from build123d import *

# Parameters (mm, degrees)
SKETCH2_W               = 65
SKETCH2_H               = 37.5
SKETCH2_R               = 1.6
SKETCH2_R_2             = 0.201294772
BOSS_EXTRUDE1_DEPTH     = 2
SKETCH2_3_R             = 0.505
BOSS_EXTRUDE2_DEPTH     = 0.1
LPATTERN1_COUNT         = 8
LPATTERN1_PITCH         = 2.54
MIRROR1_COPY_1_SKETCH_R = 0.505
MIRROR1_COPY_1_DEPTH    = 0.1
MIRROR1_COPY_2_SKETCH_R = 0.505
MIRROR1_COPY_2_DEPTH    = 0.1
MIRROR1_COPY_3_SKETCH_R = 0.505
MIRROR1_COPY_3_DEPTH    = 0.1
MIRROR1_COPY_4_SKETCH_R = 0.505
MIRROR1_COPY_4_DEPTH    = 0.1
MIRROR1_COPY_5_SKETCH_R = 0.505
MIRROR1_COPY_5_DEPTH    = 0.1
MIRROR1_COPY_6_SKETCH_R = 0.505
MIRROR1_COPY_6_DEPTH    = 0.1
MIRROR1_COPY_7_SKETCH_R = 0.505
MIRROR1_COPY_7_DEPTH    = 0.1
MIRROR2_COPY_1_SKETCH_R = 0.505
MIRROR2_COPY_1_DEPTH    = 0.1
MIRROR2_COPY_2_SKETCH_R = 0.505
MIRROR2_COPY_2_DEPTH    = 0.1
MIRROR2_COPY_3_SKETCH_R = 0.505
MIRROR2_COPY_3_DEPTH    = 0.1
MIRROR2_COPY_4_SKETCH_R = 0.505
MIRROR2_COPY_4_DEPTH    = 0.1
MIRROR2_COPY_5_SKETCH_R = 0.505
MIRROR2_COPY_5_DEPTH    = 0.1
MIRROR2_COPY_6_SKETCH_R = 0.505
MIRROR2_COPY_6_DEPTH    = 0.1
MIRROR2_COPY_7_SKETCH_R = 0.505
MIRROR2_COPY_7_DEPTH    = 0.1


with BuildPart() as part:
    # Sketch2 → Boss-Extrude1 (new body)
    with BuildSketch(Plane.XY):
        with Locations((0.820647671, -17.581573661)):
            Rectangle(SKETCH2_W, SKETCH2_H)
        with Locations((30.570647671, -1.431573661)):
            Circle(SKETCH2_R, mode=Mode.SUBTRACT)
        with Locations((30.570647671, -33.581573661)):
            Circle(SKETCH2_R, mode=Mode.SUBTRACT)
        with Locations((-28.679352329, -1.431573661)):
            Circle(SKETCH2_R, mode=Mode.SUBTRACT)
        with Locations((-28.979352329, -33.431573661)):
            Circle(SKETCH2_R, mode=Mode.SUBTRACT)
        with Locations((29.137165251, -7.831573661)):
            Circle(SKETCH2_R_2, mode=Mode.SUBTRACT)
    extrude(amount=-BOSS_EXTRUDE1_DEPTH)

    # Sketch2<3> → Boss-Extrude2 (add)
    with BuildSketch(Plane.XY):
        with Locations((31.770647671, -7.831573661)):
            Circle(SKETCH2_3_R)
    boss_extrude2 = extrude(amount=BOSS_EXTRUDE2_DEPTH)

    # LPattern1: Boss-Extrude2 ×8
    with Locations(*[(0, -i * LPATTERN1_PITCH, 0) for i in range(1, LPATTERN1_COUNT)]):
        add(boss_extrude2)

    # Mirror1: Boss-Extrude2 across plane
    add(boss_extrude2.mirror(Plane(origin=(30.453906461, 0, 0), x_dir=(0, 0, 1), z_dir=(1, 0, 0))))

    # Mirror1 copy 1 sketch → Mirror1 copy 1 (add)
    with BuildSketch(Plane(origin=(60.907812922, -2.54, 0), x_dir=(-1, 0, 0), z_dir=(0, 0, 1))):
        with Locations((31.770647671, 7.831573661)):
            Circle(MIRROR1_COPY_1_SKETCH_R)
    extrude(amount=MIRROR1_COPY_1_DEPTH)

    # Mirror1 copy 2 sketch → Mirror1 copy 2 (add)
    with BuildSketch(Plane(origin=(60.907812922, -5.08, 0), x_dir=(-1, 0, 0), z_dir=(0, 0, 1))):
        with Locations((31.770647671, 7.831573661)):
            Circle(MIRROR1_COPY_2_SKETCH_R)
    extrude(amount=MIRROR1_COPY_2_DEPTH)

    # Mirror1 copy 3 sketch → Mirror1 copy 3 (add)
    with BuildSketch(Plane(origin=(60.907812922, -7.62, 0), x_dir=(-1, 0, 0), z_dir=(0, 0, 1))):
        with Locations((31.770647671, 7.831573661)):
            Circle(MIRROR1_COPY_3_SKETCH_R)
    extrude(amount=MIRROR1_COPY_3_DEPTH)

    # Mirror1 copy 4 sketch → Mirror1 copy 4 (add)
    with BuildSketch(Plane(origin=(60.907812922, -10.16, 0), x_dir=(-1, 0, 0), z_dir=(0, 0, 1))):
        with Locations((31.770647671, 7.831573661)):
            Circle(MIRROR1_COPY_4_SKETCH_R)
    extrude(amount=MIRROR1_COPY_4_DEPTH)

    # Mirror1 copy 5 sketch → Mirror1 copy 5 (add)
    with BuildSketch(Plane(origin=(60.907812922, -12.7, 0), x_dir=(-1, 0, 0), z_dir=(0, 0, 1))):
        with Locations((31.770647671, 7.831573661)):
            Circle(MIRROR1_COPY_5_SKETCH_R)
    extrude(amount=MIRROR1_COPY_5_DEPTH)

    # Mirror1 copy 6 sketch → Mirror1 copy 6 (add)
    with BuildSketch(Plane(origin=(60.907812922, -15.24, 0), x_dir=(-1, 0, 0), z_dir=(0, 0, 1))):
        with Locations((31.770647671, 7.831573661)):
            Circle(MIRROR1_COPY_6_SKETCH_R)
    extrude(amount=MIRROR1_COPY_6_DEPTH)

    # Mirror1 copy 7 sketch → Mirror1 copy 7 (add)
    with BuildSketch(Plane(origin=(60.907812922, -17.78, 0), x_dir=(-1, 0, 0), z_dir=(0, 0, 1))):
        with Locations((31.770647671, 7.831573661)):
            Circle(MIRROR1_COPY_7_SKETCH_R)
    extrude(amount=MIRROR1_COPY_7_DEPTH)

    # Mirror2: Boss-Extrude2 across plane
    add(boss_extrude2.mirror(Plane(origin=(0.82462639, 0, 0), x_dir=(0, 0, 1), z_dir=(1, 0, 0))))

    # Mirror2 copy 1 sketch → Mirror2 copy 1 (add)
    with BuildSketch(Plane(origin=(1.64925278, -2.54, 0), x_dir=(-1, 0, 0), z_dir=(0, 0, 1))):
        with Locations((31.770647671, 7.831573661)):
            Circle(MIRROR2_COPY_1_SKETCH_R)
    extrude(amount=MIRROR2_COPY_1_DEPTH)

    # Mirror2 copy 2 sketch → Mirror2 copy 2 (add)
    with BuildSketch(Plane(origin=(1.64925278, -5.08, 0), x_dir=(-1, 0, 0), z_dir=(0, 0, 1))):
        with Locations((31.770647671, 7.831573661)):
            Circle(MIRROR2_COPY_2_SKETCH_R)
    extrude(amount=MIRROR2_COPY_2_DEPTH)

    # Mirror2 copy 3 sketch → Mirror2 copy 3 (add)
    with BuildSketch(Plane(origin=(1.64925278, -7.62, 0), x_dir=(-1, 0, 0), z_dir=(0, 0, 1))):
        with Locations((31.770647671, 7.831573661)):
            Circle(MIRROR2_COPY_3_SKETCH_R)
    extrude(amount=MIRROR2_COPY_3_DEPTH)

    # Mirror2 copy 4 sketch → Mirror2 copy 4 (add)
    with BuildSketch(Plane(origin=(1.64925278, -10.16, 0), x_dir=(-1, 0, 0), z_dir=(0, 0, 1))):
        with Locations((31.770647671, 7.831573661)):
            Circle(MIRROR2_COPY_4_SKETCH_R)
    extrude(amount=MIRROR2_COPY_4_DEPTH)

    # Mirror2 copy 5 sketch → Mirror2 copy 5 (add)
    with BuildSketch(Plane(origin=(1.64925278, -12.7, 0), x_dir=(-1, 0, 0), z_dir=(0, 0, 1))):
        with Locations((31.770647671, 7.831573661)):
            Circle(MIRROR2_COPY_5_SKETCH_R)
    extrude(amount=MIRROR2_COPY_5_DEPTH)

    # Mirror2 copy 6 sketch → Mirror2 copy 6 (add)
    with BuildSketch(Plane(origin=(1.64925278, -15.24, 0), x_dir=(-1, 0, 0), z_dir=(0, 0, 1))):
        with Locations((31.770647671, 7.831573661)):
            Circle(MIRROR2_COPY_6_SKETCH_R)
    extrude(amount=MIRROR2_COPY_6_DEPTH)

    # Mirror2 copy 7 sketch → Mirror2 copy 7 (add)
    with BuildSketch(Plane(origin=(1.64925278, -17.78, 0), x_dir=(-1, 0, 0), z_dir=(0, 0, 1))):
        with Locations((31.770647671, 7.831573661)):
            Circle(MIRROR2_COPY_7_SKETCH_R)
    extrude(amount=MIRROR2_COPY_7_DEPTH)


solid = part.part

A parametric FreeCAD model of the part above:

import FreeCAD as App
import Part
import Sketcher

doc = App.newDocument("Part")
body = doc.addObject("PartDesign::Body", "Body")

# Sketch on XY plane
sketch1 = body.newObject("Sketcher::SketchObject", "Sketch")
sketch1.AttachmentSupport = (doc.getObject("XY_Plane"), [""])
sketch1.MapMode = "FlatFace"
sketch1.addGeometry([
    Part.LineSegment(App.Vector(-31.68, 1.17, 0), App.Vector(-31.68, -36.33, 0)),  # 0
    Part.LineSegment(App.Vector(-31.68, -36.33, 0), App.Vector(33.32, -36.33, 0)),  # 1
    Part.LineSegment(App.Vector(33.32, -36.33, 0), App.Vector(33.32, 1.17, 0)),  # 2
    Part.LineSegment(App.Vector(33.32, 1.17, 0), App.Vector(-31.68, 1.17, 0)),  # 3
    Part.Circle(App.Vector(-28.98, -33.43, 0), App.Vector(0, 0, 1), 1.6),  # 4
    Part.Circle(App.Vector(30.57, -33.58, 0), App.Vector(0, 0, 1), 1.6),  # 5
    Part.Circle(App.Vector(-28.68, -1.43, 0), App.Vector(0, 0, 1), 1.6),  # 6
    Part.Circle(App.Vector(29.14, -7.83, 0), App.Vector(0, 0, 1), 0.2),  # 7
    Part.Circle(App.Vector(30.57, -1.43, 0), App.Vector(0, 0, 1), 1.6),  # 8
], False)
sketch1.addConstraint([
    Sketcher.Constraint("Coincident", 0, 2, 1, 1),
    Sketcher.Constraint("Coincident", 1, 2, 2, 1),
    Sketcher.Constraint("Coincident", 2, 2, 3, 1),
    Sketcher.Constraint("Coincident", 3, 2, 0, 1),
    Sketcher.Constraint("Vertical", 0),
    Sketcher.Constraint("Horizontal", 1),
    Sketcher.Constraint("Vertical", 2),
    Sketcher.Constraint("Horizontal", 3),
    Sketcher.Constraint("Equal", 4, 5),
    Sketcher.Constraint("Equal", 5, 6),
    Sketcher.Constraint("Equal", 6, 8),
    Sketcher.Constraint("Horizontal", 6, 3, 8, 3),
    Sketcher.Constraint("Vertical", 5, 3, 8, 3),
    Sketcher.Constraint("Diameter", 4, 3.2),
    Sketcher.Constraint("DistanceX", 1, 1, 1, 2, 65.0),
    Sketcher.Constraint("DistanceY", 0, 2, 0, 1, 37.5),
    Sketcher.Constraint("DistanceY", 4, 3, 6, 3, 32.0),
    Sketcher.Constraint("DistanceX", 0, 2, 6, 3, 3.0),
    Sketcher.Constraint("DistanceY", 7, 3, 2, 2, 9.0),
    Sketcher.Constraint("DistanceX", 4, 3, 6, 3, 0.3),
    Sketcher.Constraint("DistanceY", 7, 3, 6, 3, 6.4),
    Sketcher.Constraint("Diameter", 7, 0.40259),
    Sketcher.Constraint("DistanceX", 4, 3, 5, 3, 59.55),
    Sketcher.Constraint("DistanceY", 5, 3, 4, 3, 0.15),
    Sketcher.Constraint("DistanceX", 4, 3, -1, 1, 28.979352),
    Sketcher.Constraint("DistanceY", 4, 3, -1, 1, 33.431574),
    Sketcher.Constraint("DistanceX", -1, 1, 7, 3, 29.137165),
])
pad1 = body.newObject("PartDesign::Pad", "Pad")
pad1.Profile = sketch1
pad1.Length = 2
pad1.Reversed = True

# Sketch on XY plane
sketch2 = body.newObject("Sketcher::SketchObject", "Sketch001")
sketch2.AttachmentSupport = (doc.getObject("XY_Plane"), [""])
sketch2.MapMode = "FlatFace"
sketch2.addGeometry(Part.Circle(App.Vector(31.8, -7.8, 0), App.Vector(0, 0, 1), 0.5), False)
sketch2.addConstraint([
    Sketcher.Constraint("Diameter", 0, 1.01),
    Sketcher.Constraint("DistanceX", -1, 1, 0, 3, 31.770648),
    Sketcher.Constraint("DistanceY", 0, 3, -1, 1, 7.831574),
])
pad2 = body.newObject("PartDesign::Pad", "Pad001")
pad2.Profile = sketch2
pad2.Length = 0.1
doc.recompute()

linearpattern = body.newObject("PartDesign::LinearPattern", "LinearPattern")
linearpattern.Originals = [pad2]
linearpattern.Direction = (doc.getObject("Y_Axis"), [""])
linearpattern.Mode = "offset"
linearpattern.Offset = 2.54
linearpattern.Occurrences = 8
linearpattern.Reversed = True
body.Tip = linearpattern
doc.recompute()

datumplane = body.newObject("PartDesign::Plane", "DatumPlane")
datumplane.AttachmentSupport = (doc.getObject("YZ_Plane"), [""])
datumplane.MapMode = "FlatFace"
datumplane.AttachmentOffset = App.Placement(App.Vector(0, 0, 30.453906), App.Rotation())
mirrored = body.newObject("PartDesign::Mirrored", "Mirrored")
mirrored.Originals = [pad2]
mirrored.MirrorPlane = (datumplane, [""])
body.Tip = mirrored

# Sketch on XY plane
sketch3 = body.newObject("Sketcher::SketchObject", "Sketch002")
sketch3.AttachmentSupport = (doc.getObject("XY_Plane"), [""])
sketch3.MapMode = "FlatFace"
sketch3.addGeometry(Part.Circle(App.Vector(29.1, -10.4, 0), App.Vector(0, 0, 1), 0.5), False)
sketch3.addConstraint([
    Sketcher.Constraint("Diameter", 0, 1.01),
    Sketcher.Constraint("DistanceX", -1, 1, 0, 3, 29.137165),
    Sketcher.Constraint("DistanceY", 0, 3, -1, 1, 10.371574),
])
pad3 = body.newObject("PartDesign::Pad", "Pad002")
pad3.Profile = sketch3
pad3.Length = 0.1

# Sketch on XY plane
sketch4 = body.newObject("Sketcher::SketchObject", "Sketch003")
sketch4.AttachmentSupport = (doc.getObject("XY_Plane"), [""])
sketch4.MapMode = "FlatFace"
sketch4.addGeometry(Part.Circle(App.Vector(29.1, -12.9, 0), App.Vector(0, 0, 1), 0.5), False)
sketch4.addConstraint([
    Sketcher.Constraint("Diameter", 0, 1.01),
    Sketcher.Constraint("DistanceX", -1, 1, 0, 3, 29.137165),
    Sketcher.Constraint("DistanceY", 0, 3, -1, 1, 12.911574),
])
pad4 = body.newObject("PartDesign::Pad", "Pad003")
pad4.Profile = sketch4
pad4.Length = 0.1

# Sketch on XY plane
sketch5 = body.newObject("Sketcher::SketchObject", "Sketch004")
sketch5.AttachmentSupport = (doc.getObject("XY_Plane"), [""])
sketch5.MapMode = "FlatFace"
sketch5.addGeometry(Part.Circle(App.Vector(29.1, -15.5, 0), App.Vector(0, 0, 1), 0.5), False)
sketch5.addConstraint([
    Sketcher.Constraint("Diameter", 0, 1.01),
    Sketcher.Constraint("DistanceX", -1, 1, 0, 3, 29.137165),
    Sketcher.Constraint("DistanceY", 0, 3, -1, 1, 15.451574),
])
pad5 = body.newObject("PartDesign::Pad", "Pad004")
pad5.Profile = sketch5
pad5.Length = 0.1

# Sketch on XY plane
sketch6 = body.newObject("Sketcher::SketchObject", "Sketch005")
sketch6.AttachmentSupport = (doc.getObject("XY_Plane"), [""])
sketch6.MapMode = "FlatFace"
sketch6.addGeometry(Part.Circle(App.Vector(29.1, -18, 0), App.Vector(0, 0, 1), 0.5), False)
sketch6.addConstraint([
    Sketcher.Constraint("Diameter", 0, 1.01),
    Sketcher.Constraint("DistanceX", -1, 1, 0, 3, 29.137165),
    Sketcher.Constraint("DistanceY", 0, 3, -1, 1, 17.991574),
])
pad6 = body.newObject("PartDesign::Pad", "Pad005")
pad6.Profile = sketch6
pad6.Length = 0.1

# Sketch on XY plane
sketch7 = body.newObject("Sketcher::SketchObject", "Sketch006")
sketch7.AttachmentSupport = (doc.getObject("XY_Plane"), [""])
sketch7.MapMode = "FlatFace"
sketch7.addGeometry(Part.Circle(App.Vector(29.1, -20.5, 0), App.Vector(0, 0, 1), 0.5), False)
sketch7.addConstraint([
    Sketcher.Constraint("Diameter", 0, 1.01),
    Sketcher.Constraint("DistanceX", -1, 1, 0, 3, 29.137165),
    Sketcher.Constraint("DistanceY", 0, 3, -1, 1, 20.531574),
])
pad7 = body.newObject("PartDesign::Pad", "Pad006")
pad7.Profile = sketch7
pad7.Length = 0.1

# Sketch on XY plane
sketch8 = body.newObject("Sketcher::SketchObject", "Sketch007")
sketch8.AttachmentSupport = (doc.getObject("XY_Plane"), [""])
sketch8.MapMode = "FlatFace"
sketch8.addGeometry(Part.Circle(App.Vector(29.1, -23.1, 0), App.Vector(0, 0, 1), 0.5), False)
sketch8.addConstraint([
    Sketcher.Constraint("Diameter", 0, 1.01),
    Sketcher.Constraint("DistanceX", -1, 1, 0, 3, 29.137165),
    Sketcher.Constraint("DistanceY", 0, 3, -1, 1, 23.071574),
])
pad8 = body.newObject("PartDesign::Pad", "Pad007")
pad8.Profile = sketch8
pad8.Length = 0.1

# Sketch on XY plane
sketch9 = body.newObject("Sketcher::SketchObject", "Sketch008")
sketch9.AttachmentSupport = (doc.getObject("XY_Plane"), [""])
sketch9.MapMode = "FlatFace"
sketch9.addGeometry(Part.Circle(App.Vector(29.1, -25.6, 0), App.Vector(0, 0, 1), 0.5), False)
sketch9.addConstraint([
    Sketcher.Constraint("Diameter", 0, 1.01),
    Sketcher.Constraint("DistanceX", -1, 1, 0, 3, 29.137165),
    Sketcher.Constraint("DistanceY", 0, 3, -1, 1, 25.611574),
])
pad9 = body.newObject("PartDesign::Pad", "Pad008")
pad9.Profile = sketch9
pad9.Length = 0.1
doc.recompute()

datumplane2 = body.newObject("PartDesign::Plane", "DatumPlane001")
datumplane2.AttachmentSupport = (doc.getObject("YZ_Plane"), [""])
datumplane2.MapMode = "FlatFace"
datumplane2.AttachmentOffset = App.Placement(App.Vector(0, 0, 0.824626), App.Rotation())
mirrored2 = body.newObject("PartDesign::Mirrored", "Mirrored001")
mirrored2.Originals = [pad2]
mirrored2.MirrorPlane = (datumplane2, [""])
body.Tip = mirrored2

# Sketch on XY plane
sketch10 = body.newObject("Sketcher::SketchObject", "Sketch009")
sketch10.AttachmentSupport = (doc.getObject("XY_Plane"), [""])
sketch10.MapMode = "FlatFace"
sketch10.addGeometry(Part.Circle(App.Vector(-30.1, -10.4, 0), App.Vector(0, 0, 1), 0.5), False)
sketch10.addConstraint([
    Sketcher.Constraint("Diameter", 0, 1.01),
    Sketcher.Constraint("DistanceX", 0, 3, -1, 1, 30.121395),
    Sketcher.Constraint("DistanceY", 0, 3, -1, 1, 10.371574),
])
pad10 = body.newObject("PartDesign::Pad", "Pad009")
pad10.Profile = sketch10
pad10.Length = 0.1

# Sketch on XY plane
sketch11 = body.newObject("Sketcher::SketchObject", "Sketch010")
sketch11.AttachmentSupport = (doc.getObject("XY_Plane"), [""])
sketch11.MapMode = "FlatFace"
sketch11.addGeometry(Part.Circle(App.Vector(-30.1, -12.9, 0), App.Vector(0, 0, 1), 0.5), False)
sketch11.addConstraint([
    Sketcher.Constraint("Diameter", 0, 1.01),
    Sketcher.Constraint("DistanceX", 0, 3, -1, 1, 30.121395),
    Sketcher.Constraint("DistanceY", 0, 3, -1, 1, 12.911574),
])
pad11 = body.newObject("PartDesign::Pad", "Pad010")
pad11.Profile = sketch11
pad11.Length = 0.1

# Sketch on XY plane
sketch12 = body.newObject("Sketcher::SketchObject", "Sketch011")
sketch12.AttachmentSupport = (doc.getObject("XY_Plane"), [""])
sketch12.MapMode = "FlatFace"
sketch12.addGeometry(Part.Circle(App.Vector(-30.1, -15.5, 0), App.Vector(0, 0, 1), 0.5), False)
sketch12.addConstraint([
    Sketcher.Constraint("Diameter", 0, 1.01),
    Sketcher.Constraint("DistanceX", 0, 3, -1, 1, 30.121395),
    Sketcher.Constraint("DistanceY", 0, 3, -1, 1, 15.451574),
])
pad12 = body.newObject("PartDesign::Pad", "Pad011")
pad12.Profile = sketch12
pad12.Length = 0.1

# Sketch on XY plane
sketch13 = body.newObject("Sketcher::SketchObject", "Sketch012")
sketch13.AttachmentSupport = (doc.getObject("XY_Plane"), [""])
sketch13.MapMode = "FlatFace"
sketch13.addGeometry(Part.Circle(App.Vector(-30.1, -18, 0), App.Vector(0, 0, 1), 0.5), False)
sketch13.addConstraint([
    Sketcher.Constraint("Diameter", 0, 1.01),
    Sketcher.Constraint("DistanceX", 0, 3, -1, 1, 30.121395),
    Sketcher.Constraint("DistanceY", 0, 3, -1, 1, 17.991574),
])
pad13 = body.newObject("PartDesign::Pad", "Pad012")
pad13.Profile = sketch13
pad13.Length = 0.1

# Sketch on XY plane
sketch14 = body.newObject("Sketcher::SketchObject", "Sketch013")
sketch14.AttachmentSupport = (doc.getObject("XY_Plane"), [""])
sketch14.MapMode = "FlatFace"
sketch14.addGeometry(Part.Circle(App.Vector(-30.1, -20.5, 0), App.Vector(0, 0, 1), 0.5), False)
sketch14.addConstraint([
    Sketcher.Constraint("Diameter", 0, 1.01),
    Sketcher.Constraint("DistanceX", 0, 3, -1, 1, 30.121395),
    Sketcher.Constraint("DistanceY", 0, 3, -1, 1, 20.531574),
])
pad14 = body.newObject("PartDesign::Pad", "Pad013")
pad14.Profile = sketch14
pad14.Length = 0.1

# Sketch on XY plane
sketch15 = body.newObject("Sketcher::SketchObject", "Sketch014")
sketch15.AttachmentSupport = (doc.getObject("XY_Plane"), [""])
sketch15.MapMode = "FlatFace"
sketch15.addGeometry(Part.Circle(App.Vector(-30.1, -23.1, 0), App.Vector(0, 0, 1), 0.5), False)
sketch15.addConstraint([
    Sketcher.Constraint("Diameter", 0, 1.01),
    Sketcher.Constraint("DistanceX", 0, 3, -1, 1, 30.121395),
    Sketcher.Constraint("DistanceY", 0, 3, -1, 1, 23.071574),
])
pad15 = body.newObject("PartDesign::Pad", "Pad014")
pad15.Profile = sketch15
pad15.Length = 0.1

# Sketch on XY plane
sketch16 = body.newObject("Sketcher::SketchObject", "Sketch015")
sketch16.AttachmentSupport = (doc.getObject("XY_Plane"), [""])
sketch16.MapMode = "FlatFace"
sketch16.addGeometry(Part.Circle(App.Vector(-30.1, -25.6, 0), App.Vector(0, 0, 1), 0.5), False)
sketch16.addConstraint([
    Sketcher.Constraint("Diameter", 0, 1.01),
    Sketcher.Constraint("DistanceX", 0, 3, -1, 1, 30.121395),
    Sketcher.Constraint("DistanceY", 0, 3, -1, 1, 25.611574),
])
pad16 = body.newObject("PartDesign::Pad", "Pad015")
pad16.Profile = sketch16
pad16.Length = 0.1

doc.recompute()
